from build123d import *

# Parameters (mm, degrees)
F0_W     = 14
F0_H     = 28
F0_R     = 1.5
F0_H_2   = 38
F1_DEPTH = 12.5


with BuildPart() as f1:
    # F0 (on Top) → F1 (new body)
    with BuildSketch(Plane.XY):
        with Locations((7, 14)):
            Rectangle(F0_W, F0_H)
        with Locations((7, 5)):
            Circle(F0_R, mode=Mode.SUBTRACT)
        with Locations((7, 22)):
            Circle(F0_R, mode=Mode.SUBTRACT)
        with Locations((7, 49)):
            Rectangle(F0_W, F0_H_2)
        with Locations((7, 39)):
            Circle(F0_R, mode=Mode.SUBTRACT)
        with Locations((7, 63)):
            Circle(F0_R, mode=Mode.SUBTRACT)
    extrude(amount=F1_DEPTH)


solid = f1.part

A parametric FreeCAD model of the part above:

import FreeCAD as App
import Part
import Sketcher

V = App.Vector


def add_polygon(sketch, points):
    """Adds a closed chain of lines whose ends are joined by coincident constraints."""
    first, n = sketch.GeometryCount, len(points)
    for a, b in zip(points, points[1:] + points[:1]):
        sketch.addGeometry(Part.LineSegment(App.Vector(*a, 0), App.Vector(*b, 0)), False)
    for i in range(n):
        sketch.addConstraint(Sketcher.Constraint("Coincident", first + i, 2, first + (i + 1) % n, 1))

doc = App.newDocument("Part")
body = doc.addObject("PartDesign::Body", "Body")
body.AllowCompound = True

# Sketch on XY plane
sketch1 = body.newObject("Sketcher::SketchObject", "Sketch")
sketch1.AttachmentSupport = (doc.getObject("XY_Plane"), [""])
sketch1.MapMode = "FlatFace"
add_polygon(sketch1, [(0, 28), (0, 0), (14, 0), (14, 28)])  # lines 0-3
sketch1.addGeometry(Part.Circle(V(7, 5, 0), V(0, 0, 1), 1.5), False)  # 4
sketch1.addGeometry(Part.Circle(V(7, 22, 0), V(0, 0, 1), 1.5), False)  # 5
add_polygon(sketch1, [(0, 68), (0, 30), (14, 30), (14, 68)])  # lines 6-9
sketch1.addGeometry(Part.Circle(V(7, 39, 0), V(0, 0, 1), 1.5), False)  # 10
sketch1.addGeometry(Part.Circle(V(7, 63, 0), V(0, 0, 1), 1.5), False)  # 11
sketch1.addConstraint([
    Sketcher.Constraint("Vertical", 0),
    Sketcher.Constraint("Horizontal", 1),
    Sketcher.Constraint("Vertical", 2),
    Sketcher.Constraint("Horizontal", 3),
    Sketcher.Constraint("Vertical", 6),
    Sketcher.Constraint("Horizontal", 7),
    Sketcher.Constraint("Vertical", 8),
    Sketcher.Constraint("Horizontal", 9),
    Sketcher.Constraint("Coincident", 0, 2, -1, 1),
    Sketcher.Constraint("Equal", 4, 5),
    Sketcher.Constraint("Equal", 5, 10),
    Sketcher.Constraint("Equal", 10, 11),
    Sketcher.Constraint("PointOnObject", 6, 2, -2),
    Sketcher.Constraint("Vertical", 4, 3, 5, 3),
    Sketcher.Constraint("Vertical", 5, 3, 10, 3),
    Sketcher.Constraint("Vertical", 10, 3, 11, 3),
    Sketcher.Constraint("Vertical", 2, 2, 7, 2),
    Sketcher.Constraint("Diameter", 4, 3.0),
    Sketcher.Constraint("DistanceX", 1, 1, 1, 2, 14.0),
    Sketcher.Constraint("DistanceY", 0, 2, 0, 1, 28.0),
    Sketcher.Constraint("DistanceY", 6, 2, 6, 1, 38.0),
    Sketcher.Constraint("DistanceX", -1, 1, 4, 3, 7.0),
    Sketcher.Constraint("DistanceY", -1, 1, 4, 3, 5.0),
    Sketcher.Constraint("DistanceY", -1, 1, 5, 3, 22.0),
    Sketcher.Constraint("DistanceY", -1, 1, 10, 3, 39.0),
    Sketcher.Constraint("DistanceY", -1, 1, 11, 3, 63.0),
    Sketcher.Constraint("DistanceY", -1, 1, 6, 2, 30.0),
])
pad1 = body.newObject("PartDesign::Pad", "Pad")
pad1.Profile = sketch1
pad1.Length = 12.5

doc.recompute()
